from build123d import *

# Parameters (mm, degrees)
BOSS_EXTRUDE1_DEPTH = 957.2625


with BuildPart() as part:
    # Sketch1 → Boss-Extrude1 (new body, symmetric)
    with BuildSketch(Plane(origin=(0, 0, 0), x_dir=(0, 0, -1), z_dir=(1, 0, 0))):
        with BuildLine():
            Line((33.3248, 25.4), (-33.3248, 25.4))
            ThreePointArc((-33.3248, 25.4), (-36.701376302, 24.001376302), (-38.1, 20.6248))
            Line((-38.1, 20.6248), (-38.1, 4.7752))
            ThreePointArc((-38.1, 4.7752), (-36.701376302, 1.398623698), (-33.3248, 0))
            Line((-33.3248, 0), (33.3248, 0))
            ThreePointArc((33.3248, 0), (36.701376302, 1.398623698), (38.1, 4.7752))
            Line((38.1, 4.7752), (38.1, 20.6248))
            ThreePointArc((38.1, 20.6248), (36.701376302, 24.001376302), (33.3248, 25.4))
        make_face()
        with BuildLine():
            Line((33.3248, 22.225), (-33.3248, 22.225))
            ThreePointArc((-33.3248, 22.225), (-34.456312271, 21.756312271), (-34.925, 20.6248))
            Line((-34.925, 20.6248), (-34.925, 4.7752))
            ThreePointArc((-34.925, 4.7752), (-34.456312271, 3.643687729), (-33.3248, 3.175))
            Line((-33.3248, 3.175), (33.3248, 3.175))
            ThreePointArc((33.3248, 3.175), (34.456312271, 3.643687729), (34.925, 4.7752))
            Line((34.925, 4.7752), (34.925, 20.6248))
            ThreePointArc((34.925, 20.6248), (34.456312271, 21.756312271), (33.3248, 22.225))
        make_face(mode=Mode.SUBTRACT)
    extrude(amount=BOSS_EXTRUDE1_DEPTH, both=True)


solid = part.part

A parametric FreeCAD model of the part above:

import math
import FreeCAD as App
import Part
import Sketcher
from FreeCAD import Vector
Q = App.Units.Quantity

doc = App.newDocument("Part")
body = doc.addObject("PartDesign::Body", "Body")

# Sketch on YZ plane
sketch1 = body.newObject("Sketcher::SketchObject", "Sketch")
sketch1.AttachmentSupport = (doc.getObject("YZ_Plane"), [""])
sketch1.MapMode = "FlatFace"
sketch1.addGeometry([
    Part.LineSegment(Vector(25.4, -33.3, 0), Vector(25.4, 33.3, 0)),  # 0
    Part.ArcOfCircle(Part.Circle(Vector(20.6, 33.3, 0), Vector(0, 0, 1), 4.8), math.radians(0), math.radians(90)),  # 1
    Part.LineSegment(Vector(20.6, 38.1, 0), Vector(4.8, 38.1, 0)),  # 2
    Part.ArcOfCircle(Part.Circle(Vector(4.8, 33.3, 0), Vector(0, 0, 1), 4.8), math.radians(90), math.radians(180)),  # 3
    Part.LineSegment(Vector(0, 33.3, 0), Vector(0, -33.3, 0)),  # 4
    Part.ArcOfCircle(Part.Circle(Vector(4.8, -33.3, 0), Vector(0, 0, 1), 4.8), math.radians(180), math.radians(270)),  # 5
    Part.LineSegment(Vector(4.8, -38.1, 0), Vector(20.6, -38.1, 0)),  # 6
    Part.ArcOfCircle(Part.Circle(Vector(20.6, -33.3, 0), Vector(0, 0, 1), 4.8), math.radians(-90), math.radians(0)),  # 7
    Part.LineSegment(Vector(22.2, 33.3, 0), Vector(22.2, -33.3, 0)),  # 8
    Part.ArcOfCircle(Part.Circle(Vector(20.6, -33.3, 0), Vector(0, 0, 1), 1.6), math.radians(-90), math.radians(0)),  # 9
    Part.LineSegment(Vector(20.6, -34.9, 0), Vector(4.8, -34.9, 0)),  # 10
    Part.ArcOfCircle(Part.Circle(Vector(4.8, -33.3, 0), Vector(0, 0, 1), 1.6), math.radians(-180), math.radians(-90)),  # 11
    Part.LineSegment(Vector(3.2, -33.3, 0), Vector(3.2, 33.3, 0)),  # 12
    Part.ArcOfCircle(Part.Circle(Vector(4.8, 33.3, 0), Vector(0, 0, 1), 1.6), math.radians(90), math.radians(180)),  # 13
    Part.LineSegment(Vector(4.8, 34.9, 0), Vector(20.6, 34.9, 0)),  # 14
    Part.ArcOfCircle(Part.Circle(Vector(20.6, 33.3, 0), Vector(0, 0, 1), 1.6), math.radians(0), math.radians(90)),  # 15
], False)
sketch1.addConstraint([
    Sketcher.Constraint("Tangent", 0, 2, 1, 1),
    Sketcher.Constraint("Tangent", 1, 2, 2, 1),
    Sketcher.Constraint("Tangent", 2, 2, 3, 1),
    Sketcher.Constraint("Tangent", 3, 2, 4, 1),
    Sketcher.Constraint("Tangent", 4, 2, 5, 1),
    Sketcher.Constraint("Tangent", 5, 2, 6, 1),
    Sketcher.Constraint("Tangent", 6, 2, 7, 1),
    Sketcher.Constraint("Tangent", 7, 2, 0, 1),
    Sketcher.Constraint("Tangent", 8, 2, 9, 2),
    Sketcher.Constraint("Tangent", 9, 1, 10, 1),
    Sketcher.Constraint("Tangent", 10, 2, 11, 2),
    Sketcher.Constraint("Tangent", 11, 1, 12, 1),
    Sketcher.Constraint("Tangent", 12, 2, 13, 2),
    Sketcher.Constraint("Tangent", 13, 1, 14, 1),
    Sketcher.Constraint("Tangent", 14, 2, 15, 2),
    Sketcher.Constraint("Tangent", 15, 1, 8, 1),
    Sketcher.Constraint("Vertical", 0),
    Sketcher.Constraint("Horizontal", 2),
    Sketcher.Constraint("Vertical", 4),
    Sketcher.Constraint("Horizontal", 6),
    Sketcher.Constraint("Vertical", 8),
    Sketcher.Constraint("Horizontal", 10),
    Sketcher.Constraint("Vertical", 12),
    Sketcher.Constraint("Horizontal", 14),
    Sketcher.Constraint("Coincident", 9, 3, 7, 3),
    Sketcher.Constraint("Coincident", 11, 3, 5, 3),
    Sketcher.Constraint("Coincident", 13, 3, 3, 3),
    Sketcher.Constraint("Equal", 1, 3),
    Sketcher.Constraint("Equal", 3, 5),
    Sketcher.Constraint("Equal", 5, 7),
    Sketcher.Constraint("Equal", 13, 15),
    Sketcher.Constraint("Symmetric", 3, 2, 4, 2, -1, 1),
    Sketcher.Constraint("DistanceX", -1, 1, 0, 2, Q("1 in")),
    Sketcher.Constraint("Radius", 1, Q("0.188 in")),
    Sketcher.Constraint("Radius", 9, Q("0.063 in")),
    Sketcher.Constraint("DistanceY", -1, 1, 1, 2, Q("1.5 in")),
])
pad1 = body.newObject("PartDesign::Pad", "Pad")
pad1.Profile = sketch1
pad1.Length = Q("75.375 in")
pad1.Midplane = True

doc.recompute()
